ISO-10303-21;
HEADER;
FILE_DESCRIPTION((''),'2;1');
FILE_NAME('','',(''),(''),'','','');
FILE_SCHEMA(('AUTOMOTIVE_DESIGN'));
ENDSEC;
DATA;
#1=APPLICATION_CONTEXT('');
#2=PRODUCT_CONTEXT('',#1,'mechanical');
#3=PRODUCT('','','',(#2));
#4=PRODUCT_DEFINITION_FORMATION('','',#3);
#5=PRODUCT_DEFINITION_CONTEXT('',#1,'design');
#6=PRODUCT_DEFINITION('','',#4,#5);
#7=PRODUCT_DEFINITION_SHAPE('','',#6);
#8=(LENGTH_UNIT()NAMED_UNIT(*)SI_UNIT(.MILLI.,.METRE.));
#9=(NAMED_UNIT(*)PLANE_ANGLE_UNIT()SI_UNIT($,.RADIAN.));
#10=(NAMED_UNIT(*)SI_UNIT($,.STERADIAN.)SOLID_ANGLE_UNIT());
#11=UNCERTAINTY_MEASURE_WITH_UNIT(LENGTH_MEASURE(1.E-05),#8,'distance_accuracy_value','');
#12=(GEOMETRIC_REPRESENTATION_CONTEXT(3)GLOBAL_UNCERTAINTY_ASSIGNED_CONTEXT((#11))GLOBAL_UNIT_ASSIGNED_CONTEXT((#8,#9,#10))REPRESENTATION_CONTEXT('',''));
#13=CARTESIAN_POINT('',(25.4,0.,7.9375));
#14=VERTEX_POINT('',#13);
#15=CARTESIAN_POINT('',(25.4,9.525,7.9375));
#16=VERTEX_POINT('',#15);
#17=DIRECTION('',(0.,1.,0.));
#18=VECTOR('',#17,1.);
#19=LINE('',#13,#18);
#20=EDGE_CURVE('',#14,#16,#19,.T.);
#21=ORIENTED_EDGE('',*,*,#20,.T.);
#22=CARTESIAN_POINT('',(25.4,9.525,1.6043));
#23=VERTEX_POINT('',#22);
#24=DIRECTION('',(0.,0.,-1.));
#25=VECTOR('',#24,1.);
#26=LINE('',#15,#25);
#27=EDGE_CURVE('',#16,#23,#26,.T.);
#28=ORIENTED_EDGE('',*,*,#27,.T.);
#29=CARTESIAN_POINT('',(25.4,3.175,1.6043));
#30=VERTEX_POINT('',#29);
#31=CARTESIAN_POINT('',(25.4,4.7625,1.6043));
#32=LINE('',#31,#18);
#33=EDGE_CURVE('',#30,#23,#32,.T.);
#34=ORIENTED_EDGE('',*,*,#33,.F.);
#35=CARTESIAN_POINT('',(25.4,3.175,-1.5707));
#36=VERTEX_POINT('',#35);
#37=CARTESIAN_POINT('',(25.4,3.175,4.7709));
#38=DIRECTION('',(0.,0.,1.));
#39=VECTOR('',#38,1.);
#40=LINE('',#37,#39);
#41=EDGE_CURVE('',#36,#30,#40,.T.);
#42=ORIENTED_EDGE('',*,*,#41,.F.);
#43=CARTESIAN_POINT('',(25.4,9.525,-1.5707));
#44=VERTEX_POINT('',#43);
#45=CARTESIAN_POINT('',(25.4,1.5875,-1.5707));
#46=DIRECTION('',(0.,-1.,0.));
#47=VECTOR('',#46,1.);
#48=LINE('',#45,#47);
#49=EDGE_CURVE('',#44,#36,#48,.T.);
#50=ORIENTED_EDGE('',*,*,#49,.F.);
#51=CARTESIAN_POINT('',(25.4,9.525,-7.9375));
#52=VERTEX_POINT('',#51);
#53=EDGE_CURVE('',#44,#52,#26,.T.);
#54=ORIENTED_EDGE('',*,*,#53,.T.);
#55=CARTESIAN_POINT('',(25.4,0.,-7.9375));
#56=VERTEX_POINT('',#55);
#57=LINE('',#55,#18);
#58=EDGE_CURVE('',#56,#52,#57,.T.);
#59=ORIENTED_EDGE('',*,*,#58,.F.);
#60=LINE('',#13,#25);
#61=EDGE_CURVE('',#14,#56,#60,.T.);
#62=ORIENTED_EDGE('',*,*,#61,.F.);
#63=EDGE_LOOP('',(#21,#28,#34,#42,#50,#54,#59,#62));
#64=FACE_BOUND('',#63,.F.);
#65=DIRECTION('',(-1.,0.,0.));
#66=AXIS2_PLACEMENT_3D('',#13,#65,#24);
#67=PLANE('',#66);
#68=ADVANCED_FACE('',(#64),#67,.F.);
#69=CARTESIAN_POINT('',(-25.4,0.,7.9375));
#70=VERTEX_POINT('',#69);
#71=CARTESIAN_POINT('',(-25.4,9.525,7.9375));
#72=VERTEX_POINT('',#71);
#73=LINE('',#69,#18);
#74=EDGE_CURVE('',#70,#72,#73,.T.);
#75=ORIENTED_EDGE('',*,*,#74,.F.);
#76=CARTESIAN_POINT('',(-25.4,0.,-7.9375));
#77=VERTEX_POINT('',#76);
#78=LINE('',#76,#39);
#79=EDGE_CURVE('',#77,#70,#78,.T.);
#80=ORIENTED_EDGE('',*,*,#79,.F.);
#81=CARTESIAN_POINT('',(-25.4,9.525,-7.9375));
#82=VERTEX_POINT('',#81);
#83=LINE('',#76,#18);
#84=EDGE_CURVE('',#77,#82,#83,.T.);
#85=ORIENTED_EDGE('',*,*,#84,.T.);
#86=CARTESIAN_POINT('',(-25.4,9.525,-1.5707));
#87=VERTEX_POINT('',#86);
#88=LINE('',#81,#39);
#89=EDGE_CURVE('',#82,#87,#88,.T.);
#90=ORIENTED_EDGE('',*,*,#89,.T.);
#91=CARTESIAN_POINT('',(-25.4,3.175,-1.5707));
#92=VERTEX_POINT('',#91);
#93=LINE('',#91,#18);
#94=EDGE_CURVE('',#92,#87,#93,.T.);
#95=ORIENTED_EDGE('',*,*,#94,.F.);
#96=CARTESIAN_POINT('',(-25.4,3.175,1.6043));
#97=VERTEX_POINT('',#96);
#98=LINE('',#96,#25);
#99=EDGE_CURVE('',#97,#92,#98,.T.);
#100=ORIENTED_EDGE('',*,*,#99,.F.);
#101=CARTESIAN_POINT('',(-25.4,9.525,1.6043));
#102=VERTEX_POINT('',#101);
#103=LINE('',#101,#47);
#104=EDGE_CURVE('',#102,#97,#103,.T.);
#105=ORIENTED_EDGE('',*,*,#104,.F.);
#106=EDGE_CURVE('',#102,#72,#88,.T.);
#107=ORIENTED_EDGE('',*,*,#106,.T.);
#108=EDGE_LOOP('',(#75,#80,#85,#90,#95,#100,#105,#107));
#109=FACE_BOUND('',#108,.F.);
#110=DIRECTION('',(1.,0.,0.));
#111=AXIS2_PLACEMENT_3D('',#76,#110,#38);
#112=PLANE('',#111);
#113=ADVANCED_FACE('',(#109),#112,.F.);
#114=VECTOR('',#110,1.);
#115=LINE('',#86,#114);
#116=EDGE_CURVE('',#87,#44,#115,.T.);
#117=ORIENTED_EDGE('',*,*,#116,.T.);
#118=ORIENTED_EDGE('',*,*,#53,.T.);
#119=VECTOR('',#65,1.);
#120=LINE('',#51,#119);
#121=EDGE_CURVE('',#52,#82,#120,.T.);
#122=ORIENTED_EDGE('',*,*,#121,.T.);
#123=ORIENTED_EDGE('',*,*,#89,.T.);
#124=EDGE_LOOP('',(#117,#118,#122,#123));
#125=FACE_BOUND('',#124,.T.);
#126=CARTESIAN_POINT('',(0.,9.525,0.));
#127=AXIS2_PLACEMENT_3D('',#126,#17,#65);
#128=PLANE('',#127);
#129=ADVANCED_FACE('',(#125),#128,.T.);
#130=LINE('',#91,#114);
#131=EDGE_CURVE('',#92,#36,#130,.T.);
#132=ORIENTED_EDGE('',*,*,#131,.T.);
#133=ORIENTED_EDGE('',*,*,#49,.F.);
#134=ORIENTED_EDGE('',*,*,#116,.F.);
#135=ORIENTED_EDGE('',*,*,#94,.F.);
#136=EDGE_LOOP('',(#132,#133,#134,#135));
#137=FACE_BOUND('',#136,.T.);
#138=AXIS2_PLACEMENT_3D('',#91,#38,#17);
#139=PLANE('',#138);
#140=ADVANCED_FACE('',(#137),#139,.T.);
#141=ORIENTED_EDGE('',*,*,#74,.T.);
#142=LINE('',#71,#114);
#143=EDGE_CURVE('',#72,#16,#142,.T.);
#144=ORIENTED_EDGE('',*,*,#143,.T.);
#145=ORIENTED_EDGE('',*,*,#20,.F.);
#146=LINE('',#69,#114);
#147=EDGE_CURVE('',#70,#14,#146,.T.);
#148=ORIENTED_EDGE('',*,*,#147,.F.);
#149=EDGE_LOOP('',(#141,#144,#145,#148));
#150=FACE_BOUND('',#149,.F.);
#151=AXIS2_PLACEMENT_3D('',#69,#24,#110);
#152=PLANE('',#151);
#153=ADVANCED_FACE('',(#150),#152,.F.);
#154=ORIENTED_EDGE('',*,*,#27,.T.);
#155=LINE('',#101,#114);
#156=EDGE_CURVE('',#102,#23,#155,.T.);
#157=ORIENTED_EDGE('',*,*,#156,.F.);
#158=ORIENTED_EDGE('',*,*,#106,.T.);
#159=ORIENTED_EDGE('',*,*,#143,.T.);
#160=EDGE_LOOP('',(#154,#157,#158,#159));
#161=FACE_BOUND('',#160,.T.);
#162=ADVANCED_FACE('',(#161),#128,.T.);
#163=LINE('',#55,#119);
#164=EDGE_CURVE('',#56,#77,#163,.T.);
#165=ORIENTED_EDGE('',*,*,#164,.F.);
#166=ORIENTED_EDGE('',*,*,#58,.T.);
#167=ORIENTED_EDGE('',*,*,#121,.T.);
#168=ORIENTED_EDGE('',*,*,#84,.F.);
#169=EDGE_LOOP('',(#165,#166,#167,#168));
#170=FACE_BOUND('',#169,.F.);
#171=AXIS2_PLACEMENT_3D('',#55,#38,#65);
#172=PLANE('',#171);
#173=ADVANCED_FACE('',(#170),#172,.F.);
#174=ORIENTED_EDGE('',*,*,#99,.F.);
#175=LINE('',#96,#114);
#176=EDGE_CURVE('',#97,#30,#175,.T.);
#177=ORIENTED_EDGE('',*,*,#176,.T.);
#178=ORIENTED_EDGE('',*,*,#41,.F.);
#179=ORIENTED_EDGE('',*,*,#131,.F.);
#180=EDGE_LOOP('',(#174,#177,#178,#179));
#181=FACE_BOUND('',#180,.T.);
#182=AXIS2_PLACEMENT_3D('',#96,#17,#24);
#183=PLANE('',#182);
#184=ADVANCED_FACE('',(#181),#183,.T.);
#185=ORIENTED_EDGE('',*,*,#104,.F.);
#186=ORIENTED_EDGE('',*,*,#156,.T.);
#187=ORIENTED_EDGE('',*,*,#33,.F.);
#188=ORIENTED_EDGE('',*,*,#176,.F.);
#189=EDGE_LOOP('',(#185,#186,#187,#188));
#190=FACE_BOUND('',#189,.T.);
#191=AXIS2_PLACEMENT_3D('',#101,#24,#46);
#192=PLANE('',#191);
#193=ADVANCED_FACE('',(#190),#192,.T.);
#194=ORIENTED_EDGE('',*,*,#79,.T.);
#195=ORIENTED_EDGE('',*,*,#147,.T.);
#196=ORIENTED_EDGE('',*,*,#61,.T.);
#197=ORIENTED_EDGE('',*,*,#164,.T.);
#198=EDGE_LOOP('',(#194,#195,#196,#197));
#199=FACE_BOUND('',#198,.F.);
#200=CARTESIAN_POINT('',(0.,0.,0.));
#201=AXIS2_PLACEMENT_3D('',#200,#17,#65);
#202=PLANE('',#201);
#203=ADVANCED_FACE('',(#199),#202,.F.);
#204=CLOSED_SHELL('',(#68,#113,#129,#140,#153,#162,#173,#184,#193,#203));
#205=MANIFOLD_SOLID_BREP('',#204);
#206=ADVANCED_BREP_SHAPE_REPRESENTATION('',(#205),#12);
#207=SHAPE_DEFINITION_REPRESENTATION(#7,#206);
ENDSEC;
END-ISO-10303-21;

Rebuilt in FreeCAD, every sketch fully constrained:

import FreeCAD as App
import Part
import Sketcher
Q = App.Units.Quantity


def add_polygon(sketch, points):
    """Adds a closed chain of lines whose ends are joined by coincident constraints."""
    first, n = sketch.GeometryCount, len(points)
    for a, b in zip(points, points[1:] + points[:1]):
        sketch.addGeometry(Part.LineSegment(App.Vector(*a, 0), App.Vector(*b, 0)), False)
    for i in range(n):
        sketch.addConstraint(Sketcher.Constraint("Coincident", first + i, 2, first + (i + 1) % n, 1))

doc = App.newDocument("Part")
body = doc.addObject("PartDesign::Body", "Body")

sketch1 = body.newObject("Sketcher::SketchObject", "Sketch")
sketch1.AttachmentSupport = (doc.getObject("XZ_Plane"), [""])
sketch1.MapMode = "FlatFace"
add_polygon(sketch1, [(25.4, 7.9375), (25.4, -7.9375), (-25.4, -7.9375), (-25.4, 7.9375)])
sketch1.addConstraint([
    Sketcher.Constraint("Vertical", 0),
    Sketcher.Constraint("Horizontal", 1),
    Sketcher.Constraint("Vertical", 2),
    Sketcher.Constraint("Horizontal", 3),
    Sketcher.Constraint("Symmetric", 0, 2, 2, 2, -1, 1),
    Sketcher.Constraint("DistanceX", 1, 2, 1, 1, Q("2 in")),
    Sketcher.Constraint("DistanceY", 0, 2, 0, 1, Q("0.625 in")),
])
pad1 = body.newObject("PartDesign::Pad", "Pad")
pad1.Profile = sketch1
pad1.Length = Q("0.375 in")
pad1.Reversed = True

sketch2 = body.newObject("Sketcher::SketchObject", "Sketch001")
sketch2.AttachmentSupport = (doc.getObject("YZ_Plane"), [""])
sketch2.MapMode = "FlatFace"
sketch2.AttachmentOffset = App.Placement(App.Vector(0, 0, -1 * 25.4), App.Rotation())
add_polygon(sketch2, [(9.525, 1.6043), (9.525, -1.5707), (3.175, -1.5707), (3.175, 1.6043)])
sketch2.addConstraint([
    Sketcher.Constraint("Vertical", 0),
    Sketcher.Constraint("Horizontal", 1),
    Sketcher.Constraint("Vertical", 2),
    Sketcher.Constraint("Horizontal", 3),
    Sketcher.Constraint("DistanceX", 1, 2, 1, 1, Q("0.25 in")),
    Sketcher.Constraint("DistanceY", 0, 2, 0, 1, Q("0.125 in")),
    Sketcher.Constraint("DistanceX", -1, 1, 1, 2, Q("0.125 in")),
    Sketcher.Constraint("DistanceY", 0, 2, -1, 1, 1.5707),
])
pocket1 = body.newObject("PartDesign::Pocket", "Pocket")
pocket1.Profile = sketch2
pocket1.Type = "UpToFirst"
pocket1.Reversed = True

doc.recompute()
